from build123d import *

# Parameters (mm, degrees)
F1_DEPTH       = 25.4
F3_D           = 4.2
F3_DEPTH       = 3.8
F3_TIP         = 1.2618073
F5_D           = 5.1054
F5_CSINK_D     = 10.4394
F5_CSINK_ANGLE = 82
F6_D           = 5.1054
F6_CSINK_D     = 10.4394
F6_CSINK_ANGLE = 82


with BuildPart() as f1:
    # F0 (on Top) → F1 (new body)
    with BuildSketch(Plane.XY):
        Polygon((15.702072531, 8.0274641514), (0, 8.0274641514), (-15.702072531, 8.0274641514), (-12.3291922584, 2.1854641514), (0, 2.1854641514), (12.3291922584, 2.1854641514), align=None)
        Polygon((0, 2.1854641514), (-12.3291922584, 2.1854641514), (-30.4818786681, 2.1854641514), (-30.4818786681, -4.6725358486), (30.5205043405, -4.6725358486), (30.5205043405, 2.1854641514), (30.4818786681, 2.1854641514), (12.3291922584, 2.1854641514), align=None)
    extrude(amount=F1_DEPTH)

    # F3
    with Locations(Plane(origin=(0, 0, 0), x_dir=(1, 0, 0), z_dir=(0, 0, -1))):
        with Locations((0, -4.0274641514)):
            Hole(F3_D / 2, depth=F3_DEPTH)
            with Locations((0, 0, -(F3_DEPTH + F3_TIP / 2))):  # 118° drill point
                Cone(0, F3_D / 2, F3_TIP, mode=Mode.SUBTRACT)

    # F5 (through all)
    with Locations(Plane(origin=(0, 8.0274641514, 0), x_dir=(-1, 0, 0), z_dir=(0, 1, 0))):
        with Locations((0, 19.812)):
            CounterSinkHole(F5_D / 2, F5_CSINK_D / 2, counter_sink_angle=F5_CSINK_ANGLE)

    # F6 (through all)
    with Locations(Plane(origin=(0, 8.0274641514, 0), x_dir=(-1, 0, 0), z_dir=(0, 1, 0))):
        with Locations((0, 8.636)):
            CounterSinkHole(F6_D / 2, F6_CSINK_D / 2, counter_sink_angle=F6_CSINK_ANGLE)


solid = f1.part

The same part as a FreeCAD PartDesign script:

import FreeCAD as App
import Part
import Sketcher

V = App.Vector
Q = App.Units.Quantity

doc = App.newDocument("Part")
body = doc.addObject("PartDesign::Body", "Body")

# Sketch on XY plane
sketch1 = body.newObject("Sketcher::SketchObject", "Sketch")
sketch1.AttachmentSupport = (doc.getObject("XY_Plane"), [""])
sketch1.MapMode = "FlatFace"
sketch1.addGeometry([
    Part.LineSegment(V(16, 8, 0), V(-16, 8, 0)),  # 0
    Part.LineSegment(V(-16, 8, 0), V(-12, 2, 0)),  # 1
    Part.LineSegment(V(-12, 2, 0), V(-30, 2, 0)),  # 2
    Part.LineSegment(V(-30, 2, 0), V(-30, -5, 0)),  # 3
    Part.LineSegment(V(-30, -5, 0), V(31, -5, 0)),  # 4
    Part.LineSegment(V(31, -5, 0), V(31, 2, 0)),  # 5
    Part.LineSegment(V(31, 2, 0), V(12, 2, 0)),  # 6
    Part.LineSegment(V(12, 2, 0), V(16, 8, 0)),  # 7
], False)
sketch1.addConstraint([
    Sketcher.Constraint("Coincident", 0, 2, 1, 1),
    Sketcher.Constraint("Coincident", 1, 2, 2, 1),
    Sketcher.Constraint("Coincident", 2, 2, 3, 1),
    Sketcher.Constraint("Coincident", 3, 2, 4, 1),
    Sketcher.Constraint("Coincident", 4, 2, 5, 1),
    Sketcher.Constraint("Coincident", 5, 2, 6, 1),
    Sketcher.Constraint("Coincident", 6, 2, 7, 1),
    Sketcher.Constraint("Coincident", 7, 2, 0, 1),
    Sketcher.Constraint("Horizontal", 0),
    Sketcher.Constraint("Horizontal", 2),
    Sketcher.Constraint("Vertical", 3),
    Sketcher.Constraint("Horizontal", 4),
    Sketcher.Constraint("Vertical", 5),
    Sketcher.Constraint("Horizontal", 6),
    Sketcher.Constraint("Symmetric", 1, 2, 6, 2, -2),
    Sketcher.Constraint("Equal", 1, 7),
    Sketcher.Constraint("Angle", 1, Q("-60 deg")),
    Sketcher.Constraint("DistanceY", 3, 2, 3, 1, Q("0.27 in")),
    Sketcher.Constraint("DistanceY", 3, 2, 0, 2, Q("0.5 in")),
    Sketcher.Constraint("DistanceX", 0, 2, 0, 1, Q("31.404145 mm")),
    Sketcher.Constraint("DistanceX", 2, 2, 2, 1, Q("18.152686 mm")),
    Sketcher.Constraint("DistanceX", 4, 1, 4, 2, Q("61.002383 mm")),
    Sketcher.Constraint("DistanceY", -1, 1, 0, 2, Q("8.027464 mm")),
])
pad1 = body.newObject("PartDesign::Pad", "Pad")
pad1.Profile = sketch1
pad1.Length = Q("1 in")

# Sketch on XY plane
sketch2 = body.newObject("Sketcher::SketchObject", "Sketch001")
sketch2.AttachmentSupport = (doc.getObject("XY_Plane"), [""])
sketch2.MapMode = "FlatFace"
sketch2.addGeometry(Part.Circle(V(0, 4, 0), V(0, 0, 1), 2.1), False)
sketch2.addConstraint([
    Sketcher.Constraint("PointOnObject", 0, 3, -2),
    Sketcher.Constraint("Diameter", 0, Q("4.2 mm")),
    Sketcher.Constraint("DistanceY", -1, 1, 0, 3, Q("4.027464 mm")),
])
doc.recompute()
hole = body.newObject("PartDesign::Hole", "Hole")
hole.Profile = sketch2
hole.ThreadType = "None"
hole.Diameter = 4.2
hole.DepthType = "Dimension"
hole.Depth = 3.8
hole.DrillPoint = "Angled"
hole.DrillPointAngle = 118
hole.Reversed = True

# Sketch on XZ plane
sketch3 = body.newObject("Sketcher::SketchObject", "Sketch002")
sketch3.AttachmentSupport = (doc.getObject("XZ_Plane"), [""])
sketch3.MapMode = "FlatFace"
sketch3.AttachmentOffset = App.Placement(V(0, 0, -8.027464), App.Rotation())
sketch3.addGeometry(Part.Circle(V(0, 19.8, 0), V(0, 0, 1), 2.6), False)
sketch3.addConstraint([
    Sketcher.Constraint("PointOnObject", 0, 3, -2),
    Sketcher.Constraint("Diameter", 0, Q("0.201 in")),
    Sketcher.Constraint("DistanceY", -1, 1, 0, 3, Q("0.78 in")),
])
doc.recompute()
hole2 = body.newObject("PartDesign::Hole", "Hole001")
hole2.Profile = sketch3
hole2.ThreadType = "None"
hole2.Diameter = Q("0.201 in")
hole2.DepthType = "ThroughAll"
hole2.HoleCutType = "Countersink"
hole2.HoleCutDiameter = Q("0.411 in")
hole2.HoleCutCountersinkAngle = 82
hole2.Reversed = True

# Sketch on XZ plane
sketch4 = body.newObject("Sketcher::SketchObject", "Sketch003")
sketch4.AttachmentSupport = (doc.getObject("XZ_Plane"), [""])
sketch4.MapMode = "FlatFace"
sketch4.AttachmentOffset = App.Placement(V(0, 0, -8.027464), App.Rotation())
sketch4.addGeometry(Part.Circle(V(0, 8.6, 0), V(0, 0, 1), 2.6), False)
sketch4.addConstraint([
    Sketcher.Constraint("PointOnObject", 0, 3, -2),
    Sketcher.Constraint("Diameter", 0, Q("0.201 in")),
    Sketcher.Constraint("DistanceY", -1, 1, 0, 3, Q("0.34 in")),
])
doc.recompute()
hole3 = body.newObject("PartDesign::Hole", "Hole002")
hole3.Profile = sketch4
hole3.ThreadType = "None"
hole3.Diameter = Q("0.201 in")
hole3.DepthType = "ThroughAll"
hole3.HoleCutType = "Countersink"
hole3.HoleCutDiameter = Q("0.411 in")
hole3.HoleCutCountersinkAngle = 82
hole3.Reversed = True

doc.recompute()
